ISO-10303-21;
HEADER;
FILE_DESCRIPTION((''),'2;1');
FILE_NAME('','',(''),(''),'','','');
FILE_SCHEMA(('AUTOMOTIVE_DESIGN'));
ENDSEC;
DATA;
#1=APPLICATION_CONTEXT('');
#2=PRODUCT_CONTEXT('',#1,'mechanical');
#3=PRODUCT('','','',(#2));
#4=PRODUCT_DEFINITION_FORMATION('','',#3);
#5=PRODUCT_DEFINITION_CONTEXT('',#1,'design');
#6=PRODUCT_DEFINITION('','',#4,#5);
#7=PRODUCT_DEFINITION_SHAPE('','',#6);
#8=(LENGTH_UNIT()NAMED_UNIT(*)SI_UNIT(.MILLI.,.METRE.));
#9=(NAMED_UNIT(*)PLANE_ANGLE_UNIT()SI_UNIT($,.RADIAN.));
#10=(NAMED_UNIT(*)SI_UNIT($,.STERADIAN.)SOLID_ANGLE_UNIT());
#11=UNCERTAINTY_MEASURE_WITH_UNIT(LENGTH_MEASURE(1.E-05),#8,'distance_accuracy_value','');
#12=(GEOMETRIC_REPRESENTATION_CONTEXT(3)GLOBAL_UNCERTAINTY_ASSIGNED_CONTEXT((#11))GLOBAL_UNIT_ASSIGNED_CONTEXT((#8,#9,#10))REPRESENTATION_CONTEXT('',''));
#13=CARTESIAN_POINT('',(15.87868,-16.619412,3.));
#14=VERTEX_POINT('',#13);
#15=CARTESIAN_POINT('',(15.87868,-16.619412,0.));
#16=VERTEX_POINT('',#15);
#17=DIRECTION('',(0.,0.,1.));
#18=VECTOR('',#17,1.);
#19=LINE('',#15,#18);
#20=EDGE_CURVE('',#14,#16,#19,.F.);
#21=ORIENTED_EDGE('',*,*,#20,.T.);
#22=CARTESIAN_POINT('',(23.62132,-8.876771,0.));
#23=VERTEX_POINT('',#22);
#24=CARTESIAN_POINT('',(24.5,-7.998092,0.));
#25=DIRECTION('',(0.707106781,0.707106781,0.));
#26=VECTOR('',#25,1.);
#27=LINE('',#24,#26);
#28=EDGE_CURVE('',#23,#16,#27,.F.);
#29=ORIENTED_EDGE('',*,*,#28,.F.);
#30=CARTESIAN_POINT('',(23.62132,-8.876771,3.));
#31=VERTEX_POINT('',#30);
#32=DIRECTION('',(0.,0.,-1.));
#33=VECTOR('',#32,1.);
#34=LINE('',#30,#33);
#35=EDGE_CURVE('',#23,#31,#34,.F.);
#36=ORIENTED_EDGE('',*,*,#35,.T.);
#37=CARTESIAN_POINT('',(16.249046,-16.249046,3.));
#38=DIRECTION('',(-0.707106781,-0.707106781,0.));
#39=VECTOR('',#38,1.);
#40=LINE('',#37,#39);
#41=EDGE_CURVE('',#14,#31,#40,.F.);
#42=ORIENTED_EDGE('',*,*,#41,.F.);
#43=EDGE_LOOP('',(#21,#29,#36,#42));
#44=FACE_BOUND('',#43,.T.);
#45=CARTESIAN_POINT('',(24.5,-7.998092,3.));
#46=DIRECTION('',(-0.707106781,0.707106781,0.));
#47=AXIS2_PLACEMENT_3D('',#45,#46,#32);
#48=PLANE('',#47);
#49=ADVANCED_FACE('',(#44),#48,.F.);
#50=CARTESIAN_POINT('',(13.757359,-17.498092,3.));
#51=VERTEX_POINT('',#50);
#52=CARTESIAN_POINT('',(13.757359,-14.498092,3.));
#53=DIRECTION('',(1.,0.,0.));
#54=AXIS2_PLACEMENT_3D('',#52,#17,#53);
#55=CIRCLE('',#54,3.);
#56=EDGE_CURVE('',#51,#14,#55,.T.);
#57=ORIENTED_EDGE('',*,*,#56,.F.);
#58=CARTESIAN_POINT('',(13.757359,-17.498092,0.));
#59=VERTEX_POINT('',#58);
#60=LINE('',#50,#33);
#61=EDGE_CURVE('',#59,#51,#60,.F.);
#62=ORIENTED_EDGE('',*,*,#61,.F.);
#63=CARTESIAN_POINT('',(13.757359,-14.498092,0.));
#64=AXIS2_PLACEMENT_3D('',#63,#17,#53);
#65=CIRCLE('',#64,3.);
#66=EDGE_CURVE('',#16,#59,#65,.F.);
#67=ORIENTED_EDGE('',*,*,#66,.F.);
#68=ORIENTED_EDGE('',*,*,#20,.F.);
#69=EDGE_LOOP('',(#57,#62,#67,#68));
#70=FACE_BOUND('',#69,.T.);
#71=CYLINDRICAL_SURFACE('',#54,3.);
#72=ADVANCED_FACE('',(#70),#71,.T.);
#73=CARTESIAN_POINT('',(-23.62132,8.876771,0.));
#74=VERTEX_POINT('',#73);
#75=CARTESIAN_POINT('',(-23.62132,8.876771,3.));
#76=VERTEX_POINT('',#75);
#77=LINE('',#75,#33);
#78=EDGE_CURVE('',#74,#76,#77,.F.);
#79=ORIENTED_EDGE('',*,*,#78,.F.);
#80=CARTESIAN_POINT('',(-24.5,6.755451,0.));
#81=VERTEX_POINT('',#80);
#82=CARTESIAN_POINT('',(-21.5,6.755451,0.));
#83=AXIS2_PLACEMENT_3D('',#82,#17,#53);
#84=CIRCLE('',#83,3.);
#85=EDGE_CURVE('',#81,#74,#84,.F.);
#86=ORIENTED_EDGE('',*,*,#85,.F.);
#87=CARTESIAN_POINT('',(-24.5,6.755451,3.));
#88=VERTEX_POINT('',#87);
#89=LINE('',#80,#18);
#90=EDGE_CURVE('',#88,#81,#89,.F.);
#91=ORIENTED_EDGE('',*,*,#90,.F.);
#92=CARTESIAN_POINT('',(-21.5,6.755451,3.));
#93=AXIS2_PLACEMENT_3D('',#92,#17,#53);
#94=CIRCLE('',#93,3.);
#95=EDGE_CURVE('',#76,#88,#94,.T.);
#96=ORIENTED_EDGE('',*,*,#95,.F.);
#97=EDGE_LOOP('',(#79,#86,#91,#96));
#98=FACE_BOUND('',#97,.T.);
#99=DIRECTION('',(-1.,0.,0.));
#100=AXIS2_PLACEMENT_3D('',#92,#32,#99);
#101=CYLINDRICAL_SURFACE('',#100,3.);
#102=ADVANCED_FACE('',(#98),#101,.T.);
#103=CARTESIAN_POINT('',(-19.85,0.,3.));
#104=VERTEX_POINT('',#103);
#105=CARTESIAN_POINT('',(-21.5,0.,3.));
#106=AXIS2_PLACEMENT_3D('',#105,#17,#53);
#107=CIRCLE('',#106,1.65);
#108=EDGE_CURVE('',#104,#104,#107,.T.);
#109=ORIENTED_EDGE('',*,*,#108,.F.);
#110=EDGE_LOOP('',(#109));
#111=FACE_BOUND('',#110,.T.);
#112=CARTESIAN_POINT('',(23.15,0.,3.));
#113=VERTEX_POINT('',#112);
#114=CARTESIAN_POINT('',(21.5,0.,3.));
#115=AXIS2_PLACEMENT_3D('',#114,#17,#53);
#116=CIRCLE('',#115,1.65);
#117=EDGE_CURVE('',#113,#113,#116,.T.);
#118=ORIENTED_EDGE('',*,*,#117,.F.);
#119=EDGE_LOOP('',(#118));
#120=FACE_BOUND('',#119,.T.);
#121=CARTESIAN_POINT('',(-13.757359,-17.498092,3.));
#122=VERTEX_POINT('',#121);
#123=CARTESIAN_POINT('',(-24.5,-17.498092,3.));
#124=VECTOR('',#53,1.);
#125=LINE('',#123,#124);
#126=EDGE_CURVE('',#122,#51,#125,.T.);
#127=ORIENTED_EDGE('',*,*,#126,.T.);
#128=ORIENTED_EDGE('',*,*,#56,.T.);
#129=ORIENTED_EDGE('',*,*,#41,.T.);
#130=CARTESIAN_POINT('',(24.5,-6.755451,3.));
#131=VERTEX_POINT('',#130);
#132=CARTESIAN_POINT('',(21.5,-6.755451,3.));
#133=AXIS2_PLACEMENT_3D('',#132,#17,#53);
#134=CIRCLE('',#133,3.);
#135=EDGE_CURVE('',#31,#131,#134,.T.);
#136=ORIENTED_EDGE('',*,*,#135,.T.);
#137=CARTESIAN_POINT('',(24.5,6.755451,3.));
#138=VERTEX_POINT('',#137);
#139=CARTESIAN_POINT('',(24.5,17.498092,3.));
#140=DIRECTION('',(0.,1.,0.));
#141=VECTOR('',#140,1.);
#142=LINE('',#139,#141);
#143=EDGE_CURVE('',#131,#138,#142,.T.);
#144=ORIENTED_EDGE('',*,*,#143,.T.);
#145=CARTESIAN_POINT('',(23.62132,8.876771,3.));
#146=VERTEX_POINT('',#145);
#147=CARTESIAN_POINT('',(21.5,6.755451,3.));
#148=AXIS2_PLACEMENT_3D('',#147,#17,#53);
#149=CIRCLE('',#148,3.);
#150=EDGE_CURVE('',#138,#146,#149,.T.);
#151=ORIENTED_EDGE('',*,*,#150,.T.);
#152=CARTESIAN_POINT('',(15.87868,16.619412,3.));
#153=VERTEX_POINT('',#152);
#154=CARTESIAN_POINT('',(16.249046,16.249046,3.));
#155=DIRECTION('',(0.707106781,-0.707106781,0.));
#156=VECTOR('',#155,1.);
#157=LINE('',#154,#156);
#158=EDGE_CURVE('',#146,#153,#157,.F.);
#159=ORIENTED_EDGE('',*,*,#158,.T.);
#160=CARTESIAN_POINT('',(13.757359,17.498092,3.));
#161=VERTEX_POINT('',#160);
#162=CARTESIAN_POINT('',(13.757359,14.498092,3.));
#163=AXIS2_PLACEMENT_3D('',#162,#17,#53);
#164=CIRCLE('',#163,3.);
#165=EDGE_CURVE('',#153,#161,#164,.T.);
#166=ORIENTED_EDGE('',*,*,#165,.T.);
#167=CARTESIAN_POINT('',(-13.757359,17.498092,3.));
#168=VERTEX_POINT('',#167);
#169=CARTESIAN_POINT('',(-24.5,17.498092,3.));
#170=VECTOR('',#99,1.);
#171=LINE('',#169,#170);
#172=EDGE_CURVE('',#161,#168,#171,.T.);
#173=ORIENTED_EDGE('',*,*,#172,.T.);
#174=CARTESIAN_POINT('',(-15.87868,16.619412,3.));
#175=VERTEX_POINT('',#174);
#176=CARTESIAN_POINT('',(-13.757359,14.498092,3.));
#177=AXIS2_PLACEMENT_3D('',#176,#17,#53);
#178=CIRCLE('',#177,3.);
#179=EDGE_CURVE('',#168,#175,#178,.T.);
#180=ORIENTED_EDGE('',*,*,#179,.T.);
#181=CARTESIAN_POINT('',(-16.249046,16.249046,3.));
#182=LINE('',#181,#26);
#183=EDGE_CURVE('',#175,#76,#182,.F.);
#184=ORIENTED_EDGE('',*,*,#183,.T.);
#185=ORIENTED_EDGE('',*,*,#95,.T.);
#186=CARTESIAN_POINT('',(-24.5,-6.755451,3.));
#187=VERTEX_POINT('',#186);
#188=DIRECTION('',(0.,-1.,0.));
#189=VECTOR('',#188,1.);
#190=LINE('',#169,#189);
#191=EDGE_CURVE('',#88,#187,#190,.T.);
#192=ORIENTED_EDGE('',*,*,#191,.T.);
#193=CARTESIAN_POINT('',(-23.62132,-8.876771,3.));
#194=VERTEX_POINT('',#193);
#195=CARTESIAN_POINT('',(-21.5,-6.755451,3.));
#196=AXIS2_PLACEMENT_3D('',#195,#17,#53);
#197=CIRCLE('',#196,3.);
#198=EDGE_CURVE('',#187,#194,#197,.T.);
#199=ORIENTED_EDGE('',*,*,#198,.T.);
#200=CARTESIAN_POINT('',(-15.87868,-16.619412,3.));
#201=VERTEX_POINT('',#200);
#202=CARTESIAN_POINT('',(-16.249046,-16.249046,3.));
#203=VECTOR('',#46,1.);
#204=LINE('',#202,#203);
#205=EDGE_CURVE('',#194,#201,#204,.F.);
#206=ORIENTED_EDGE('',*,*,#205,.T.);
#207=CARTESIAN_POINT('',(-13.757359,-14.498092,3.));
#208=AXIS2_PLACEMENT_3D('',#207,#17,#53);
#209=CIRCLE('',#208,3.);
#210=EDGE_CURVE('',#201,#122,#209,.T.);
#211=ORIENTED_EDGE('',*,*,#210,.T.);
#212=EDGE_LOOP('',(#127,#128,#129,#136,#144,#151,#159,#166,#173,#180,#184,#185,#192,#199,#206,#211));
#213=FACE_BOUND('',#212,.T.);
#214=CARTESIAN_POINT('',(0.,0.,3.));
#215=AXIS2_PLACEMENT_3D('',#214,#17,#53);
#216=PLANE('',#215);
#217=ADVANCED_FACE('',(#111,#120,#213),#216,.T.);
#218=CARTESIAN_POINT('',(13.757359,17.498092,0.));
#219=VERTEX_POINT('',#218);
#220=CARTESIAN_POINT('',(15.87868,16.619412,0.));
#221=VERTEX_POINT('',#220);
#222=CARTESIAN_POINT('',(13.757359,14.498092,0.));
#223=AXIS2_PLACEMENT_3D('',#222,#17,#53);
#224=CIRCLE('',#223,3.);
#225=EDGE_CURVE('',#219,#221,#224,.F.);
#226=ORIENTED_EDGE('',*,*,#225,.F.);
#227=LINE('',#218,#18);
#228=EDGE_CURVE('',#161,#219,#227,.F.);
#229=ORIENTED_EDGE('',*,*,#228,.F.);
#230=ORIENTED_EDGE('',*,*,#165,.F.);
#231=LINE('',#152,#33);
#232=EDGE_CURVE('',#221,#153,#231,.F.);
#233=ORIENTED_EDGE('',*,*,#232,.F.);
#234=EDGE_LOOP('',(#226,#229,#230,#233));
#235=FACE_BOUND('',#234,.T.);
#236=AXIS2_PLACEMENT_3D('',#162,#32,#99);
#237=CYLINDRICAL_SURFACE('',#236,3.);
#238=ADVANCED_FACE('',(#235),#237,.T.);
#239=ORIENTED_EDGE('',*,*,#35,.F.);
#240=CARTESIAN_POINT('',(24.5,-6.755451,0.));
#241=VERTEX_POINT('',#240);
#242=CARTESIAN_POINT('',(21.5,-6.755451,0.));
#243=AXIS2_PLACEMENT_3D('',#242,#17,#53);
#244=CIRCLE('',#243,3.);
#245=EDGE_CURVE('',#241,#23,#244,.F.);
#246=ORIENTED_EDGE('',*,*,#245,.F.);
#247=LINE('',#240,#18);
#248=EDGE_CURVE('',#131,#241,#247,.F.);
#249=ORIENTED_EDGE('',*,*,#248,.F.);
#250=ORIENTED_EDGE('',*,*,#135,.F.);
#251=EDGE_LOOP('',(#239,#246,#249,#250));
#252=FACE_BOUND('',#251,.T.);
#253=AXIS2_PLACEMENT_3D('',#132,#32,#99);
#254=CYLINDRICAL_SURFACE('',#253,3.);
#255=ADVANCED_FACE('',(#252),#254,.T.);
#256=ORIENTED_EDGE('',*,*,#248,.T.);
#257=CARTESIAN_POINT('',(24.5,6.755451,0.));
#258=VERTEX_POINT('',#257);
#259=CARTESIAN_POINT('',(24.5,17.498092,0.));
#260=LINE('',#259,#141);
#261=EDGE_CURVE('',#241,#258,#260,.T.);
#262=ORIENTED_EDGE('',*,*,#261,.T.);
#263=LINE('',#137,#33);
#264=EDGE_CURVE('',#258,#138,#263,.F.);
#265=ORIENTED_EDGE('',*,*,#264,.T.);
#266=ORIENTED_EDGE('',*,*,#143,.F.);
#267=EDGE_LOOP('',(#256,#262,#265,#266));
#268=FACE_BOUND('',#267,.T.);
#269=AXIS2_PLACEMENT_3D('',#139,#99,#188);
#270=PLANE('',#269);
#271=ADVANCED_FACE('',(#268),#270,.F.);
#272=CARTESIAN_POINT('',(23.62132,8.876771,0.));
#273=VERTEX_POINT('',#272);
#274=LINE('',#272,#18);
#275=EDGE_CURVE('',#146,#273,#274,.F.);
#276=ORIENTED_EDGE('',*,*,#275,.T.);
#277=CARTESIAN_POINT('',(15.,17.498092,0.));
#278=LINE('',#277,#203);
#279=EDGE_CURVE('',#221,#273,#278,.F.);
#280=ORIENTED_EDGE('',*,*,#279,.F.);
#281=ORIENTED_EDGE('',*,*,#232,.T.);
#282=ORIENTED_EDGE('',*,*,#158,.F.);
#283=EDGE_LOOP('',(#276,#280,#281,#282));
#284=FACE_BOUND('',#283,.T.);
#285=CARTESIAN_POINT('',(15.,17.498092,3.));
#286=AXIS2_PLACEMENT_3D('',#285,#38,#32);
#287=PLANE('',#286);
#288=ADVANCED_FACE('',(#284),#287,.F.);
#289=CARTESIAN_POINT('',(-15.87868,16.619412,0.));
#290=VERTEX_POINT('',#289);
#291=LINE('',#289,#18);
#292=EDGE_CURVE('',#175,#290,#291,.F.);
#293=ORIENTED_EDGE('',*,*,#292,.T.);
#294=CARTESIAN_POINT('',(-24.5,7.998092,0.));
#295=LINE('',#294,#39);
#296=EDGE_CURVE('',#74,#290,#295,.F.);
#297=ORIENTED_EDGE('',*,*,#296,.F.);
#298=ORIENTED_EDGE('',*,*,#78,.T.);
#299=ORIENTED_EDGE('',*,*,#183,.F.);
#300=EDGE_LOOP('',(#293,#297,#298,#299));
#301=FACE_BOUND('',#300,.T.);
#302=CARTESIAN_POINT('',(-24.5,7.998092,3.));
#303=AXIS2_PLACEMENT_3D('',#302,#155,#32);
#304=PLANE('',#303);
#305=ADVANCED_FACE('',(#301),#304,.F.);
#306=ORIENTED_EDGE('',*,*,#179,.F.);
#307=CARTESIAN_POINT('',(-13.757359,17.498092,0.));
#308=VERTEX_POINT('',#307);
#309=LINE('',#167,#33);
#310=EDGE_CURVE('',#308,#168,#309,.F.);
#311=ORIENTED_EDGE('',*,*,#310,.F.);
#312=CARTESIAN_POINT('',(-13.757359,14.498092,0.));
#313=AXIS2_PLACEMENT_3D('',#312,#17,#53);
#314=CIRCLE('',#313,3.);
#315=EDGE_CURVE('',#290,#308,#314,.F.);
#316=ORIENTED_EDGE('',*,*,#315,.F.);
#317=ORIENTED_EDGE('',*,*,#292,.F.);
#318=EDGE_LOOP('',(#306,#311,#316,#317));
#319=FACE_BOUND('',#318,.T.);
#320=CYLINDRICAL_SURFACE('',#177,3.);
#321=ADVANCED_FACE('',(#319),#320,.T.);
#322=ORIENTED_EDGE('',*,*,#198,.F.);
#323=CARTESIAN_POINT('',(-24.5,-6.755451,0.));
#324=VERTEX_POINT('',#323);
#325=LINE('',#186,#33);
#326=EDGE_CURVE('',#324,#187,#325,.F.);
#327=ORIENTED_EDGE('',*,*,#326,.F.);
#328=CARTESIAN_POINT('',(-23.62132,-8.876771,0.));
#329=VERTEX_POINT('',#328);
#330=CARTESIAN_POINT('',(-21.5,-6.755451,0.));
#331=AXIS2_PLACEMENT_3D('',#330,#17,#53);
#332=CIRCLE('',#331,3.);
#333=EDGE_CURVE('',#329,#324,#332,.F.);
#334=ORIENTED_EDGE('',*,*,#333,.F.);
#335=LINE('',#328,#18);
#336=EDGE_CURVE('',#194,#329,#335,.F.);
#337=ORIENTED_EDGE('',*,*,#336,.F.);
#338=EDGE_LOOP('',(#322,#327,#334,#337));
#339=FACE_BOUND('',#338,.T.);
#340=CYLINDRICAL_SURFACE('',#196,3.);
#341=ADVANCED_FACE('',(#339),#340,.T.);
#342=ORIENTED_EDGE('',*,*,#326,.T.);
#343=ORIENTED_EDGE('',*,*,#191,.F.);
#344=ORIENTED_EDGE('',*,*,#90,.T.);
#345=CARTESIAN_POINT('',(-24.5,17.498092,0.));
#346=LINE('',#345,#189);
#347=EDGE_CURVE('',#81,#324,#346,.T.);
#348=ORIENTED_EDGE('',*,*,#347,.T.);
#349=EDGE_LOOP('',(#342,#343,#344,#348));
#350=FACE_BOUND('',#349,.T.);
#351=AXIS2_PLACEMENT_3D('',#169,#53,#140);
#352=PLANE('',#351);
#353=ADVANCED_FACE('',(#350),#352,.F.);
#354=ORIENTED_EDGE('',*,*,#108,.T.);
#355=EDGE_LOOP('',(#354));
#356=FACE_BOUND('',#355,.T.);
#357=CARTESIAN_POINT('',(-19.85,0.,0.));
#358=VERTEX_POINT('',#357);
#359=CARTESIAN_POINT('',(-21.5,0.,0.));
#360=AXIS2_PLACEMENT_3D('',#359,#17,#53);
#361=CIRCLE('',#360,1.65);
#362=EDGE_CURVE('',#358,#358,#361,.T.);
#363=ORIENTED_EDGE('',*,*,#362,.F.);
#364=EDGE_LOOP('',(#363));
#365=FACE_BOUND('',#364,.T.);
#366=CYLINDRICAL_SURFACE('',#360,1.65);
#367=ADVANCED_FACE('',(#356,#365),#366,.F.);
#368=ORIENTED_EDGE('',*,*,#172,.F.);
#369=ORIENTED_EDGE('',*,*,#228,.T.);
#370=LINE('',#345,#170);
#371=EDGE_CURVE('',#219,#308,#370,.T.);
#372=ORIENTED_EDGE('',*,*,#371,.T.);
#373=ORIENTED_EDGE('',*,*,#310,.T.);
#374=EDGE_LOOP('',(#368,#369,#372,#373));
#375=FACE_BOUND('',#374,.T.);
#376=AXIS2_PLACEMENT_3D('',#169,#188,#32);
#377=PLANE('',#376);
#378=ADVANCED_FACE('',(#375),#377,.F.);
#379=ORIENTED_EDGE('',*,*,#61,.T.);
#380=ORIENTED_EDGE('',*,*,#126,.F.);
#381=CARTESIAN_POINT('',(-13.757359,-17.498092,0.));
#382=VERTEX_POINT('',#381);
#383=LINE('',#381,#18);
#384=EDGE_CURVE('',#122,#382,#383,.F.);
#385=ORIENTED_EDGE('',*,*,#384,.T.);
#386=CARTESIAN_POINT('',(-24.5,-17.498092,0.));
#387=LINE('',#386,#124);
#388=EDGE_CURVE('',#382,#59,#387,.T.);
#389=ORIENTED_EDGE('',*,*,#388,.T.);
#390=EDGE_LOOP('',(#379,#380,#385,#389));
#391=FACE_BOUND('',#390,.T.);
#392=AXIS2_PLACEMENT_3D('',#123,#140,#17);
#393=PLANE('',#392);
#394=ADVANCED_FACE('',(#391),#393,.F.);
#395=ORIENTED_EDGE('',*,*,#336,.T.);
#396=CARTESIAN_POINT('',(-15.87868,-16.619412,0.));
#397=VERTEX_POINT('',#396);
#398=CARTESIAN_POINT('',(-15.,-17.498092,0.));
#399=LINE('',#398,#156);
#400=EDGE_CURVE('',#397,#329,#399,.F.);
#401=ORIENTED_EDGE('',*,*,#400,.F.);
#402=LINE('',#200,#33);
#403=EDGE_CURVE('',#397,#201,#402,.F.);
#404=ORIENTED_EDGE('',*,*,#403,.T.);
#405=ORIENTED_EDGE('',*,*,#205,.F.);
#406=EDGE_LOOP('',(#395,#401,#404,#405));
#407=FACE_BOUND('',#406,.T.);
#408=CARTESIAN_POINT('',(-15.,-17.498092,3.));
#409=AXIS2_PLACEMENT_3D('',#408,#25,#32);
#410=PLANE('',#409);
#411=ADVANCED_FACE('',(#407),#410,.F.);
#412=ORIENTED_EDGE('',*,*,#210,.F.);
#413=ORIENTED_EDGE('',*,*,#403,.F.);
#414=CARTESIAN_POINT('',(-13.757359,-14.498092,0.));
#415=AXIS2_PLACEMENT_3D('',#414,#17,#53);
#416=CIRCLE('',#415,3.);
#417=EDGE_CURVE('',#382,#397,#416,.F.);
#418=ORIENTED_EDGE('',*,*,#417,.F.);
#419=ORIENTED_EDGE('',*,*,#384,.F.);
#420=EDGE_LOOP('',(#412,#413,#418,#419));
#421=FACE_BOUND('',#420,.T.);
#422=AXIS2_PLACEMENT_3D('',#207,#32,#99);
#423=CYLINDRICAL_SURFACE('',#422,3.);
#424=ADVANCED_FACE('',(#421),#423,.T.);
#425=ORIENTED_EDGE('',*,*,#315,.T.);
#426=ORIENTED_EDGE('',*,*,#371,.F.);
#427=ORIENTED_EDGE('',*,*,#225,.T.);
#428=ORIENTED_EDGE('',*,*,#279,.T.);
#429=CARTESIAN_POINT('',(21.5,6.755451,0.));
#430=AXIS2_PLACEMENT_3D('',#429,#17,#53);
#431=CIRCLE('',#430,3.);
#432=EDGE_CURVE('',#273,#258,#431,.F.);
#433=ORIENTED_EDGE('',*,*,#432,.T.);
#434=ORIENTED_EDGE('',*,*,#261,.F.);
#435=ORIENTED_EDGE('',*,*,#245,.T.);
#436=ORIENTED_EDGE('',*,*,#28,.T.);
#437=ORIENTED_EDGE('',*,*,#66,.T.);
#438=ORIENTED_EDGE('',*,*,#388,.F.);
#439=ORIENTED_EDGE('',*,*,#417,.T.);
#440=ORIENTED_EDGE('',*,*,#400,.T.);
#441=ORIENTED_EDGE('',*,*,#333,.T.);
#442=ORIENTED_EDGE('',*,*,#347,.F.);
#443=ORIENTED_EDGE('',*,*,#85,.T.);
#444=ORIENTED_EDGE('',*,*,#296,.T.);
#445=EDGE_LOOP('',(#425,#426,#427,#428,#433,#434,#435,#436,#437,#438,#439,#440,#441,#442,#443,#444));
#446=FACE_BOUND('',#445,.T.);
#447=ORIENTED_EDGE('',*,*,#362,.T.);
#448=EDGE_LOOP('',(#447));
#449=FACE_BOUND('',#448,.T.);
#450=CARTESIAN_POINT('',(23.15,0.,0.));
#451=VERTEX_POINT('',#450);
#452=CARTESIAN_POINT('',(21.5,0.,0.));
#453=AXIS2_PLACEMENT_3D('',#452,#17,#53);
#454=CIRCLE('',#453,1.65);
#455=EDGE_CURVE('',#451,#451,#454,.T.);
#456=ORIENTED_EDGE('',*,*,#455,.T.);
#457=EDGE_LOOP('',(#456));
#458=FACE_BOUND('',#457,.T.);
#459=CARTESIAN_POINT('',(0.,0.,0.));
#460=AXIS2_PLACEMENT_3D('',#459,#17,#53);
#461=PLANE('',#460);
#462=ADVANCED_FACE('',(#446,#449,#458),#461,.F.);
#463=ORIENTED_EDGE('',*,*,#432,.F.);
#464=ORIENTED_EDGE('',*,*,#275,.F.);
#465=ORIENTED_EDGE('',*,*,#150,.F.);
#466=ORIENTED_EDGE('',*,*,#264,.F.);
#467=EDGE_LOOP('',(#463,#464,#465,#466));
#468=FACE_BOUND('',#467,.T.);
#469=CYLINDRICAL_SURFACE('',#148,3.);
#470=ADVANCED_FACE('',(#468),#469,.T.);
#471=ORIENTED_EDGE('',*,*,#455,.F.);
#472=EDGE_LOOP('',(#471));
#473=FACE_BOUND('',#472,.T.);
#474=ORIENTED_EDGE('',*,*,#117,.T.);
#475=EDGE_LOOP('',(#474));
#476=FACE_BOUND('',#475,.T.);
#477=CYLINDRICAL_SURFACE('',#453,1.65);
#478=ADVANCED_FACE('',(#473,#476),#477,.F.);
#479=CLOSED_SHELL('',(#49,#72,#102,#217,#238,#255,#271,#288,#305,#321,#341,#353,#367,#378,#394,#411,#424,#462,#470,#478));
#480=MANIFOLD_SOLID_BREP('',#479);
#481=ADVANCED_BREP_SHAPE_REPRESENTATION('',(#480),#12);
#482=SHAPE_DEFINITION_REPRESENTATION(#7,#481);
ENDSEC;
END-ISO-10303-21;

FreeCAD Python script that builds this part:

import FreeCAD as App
import Part
import Sketcher
Q = App.Units.Quantity


def edges_at(feature, points):
    """Names of the edges that pass closest to the given points."""
    edges = feature.Shape.Edges
    near = lambda p: min(range(len(edges)), key=lambda i: edges[i].distToShape(Part.Vertex(*p))[0])
    return sorted({f"Edge{near(p) + 1}" for p in points})

doc = App.newDocument("Part")
body = doc.addObject("PartDesign::Body", "Body")

# Sketch on XY plane
sketch1 = body.newObject("Sketcher::SketchObject", "Sketch")
sketch1.AttachmentSupport = (doc.getObject("XY_Plane"), [""])
sketch1.MapMode = "FlatFace"
sketch1.addGeometry(Part.LineSegment(App.Vector(-24, 17, 0), App.Vector(-24, -17, 0)), False)
sketch1.addGeometry(Part.LineSegment(App.Vector(-24, -17, 0), App.Vector(24, -17, 0)), False)
sketch1.addGeometry(Part.LineSegment(App.Vector(24, -17, 0), App.Vector(24, 17, 0)), False)
sketch1.addGeometry(Part.LineSegment(App.Vector(24, 17, 0), App.Vector(-24, 17, 0)), False)
sketch1.addConstraint(Sketcher.Constraint("Coincident", 0, 2, 1, 1))
sketch1.addConstraint(Sketcher.Constraint("Coincident", 1, 2, 2, 1))
sketch1.addConstraint(Sketcher.Constraint("Coincident", 2, 2, 3, 1))
sketch1.addConstraint(Sketcher.Constraint("Coincident", 3, 2, 0, 1))
sketch1.addConstraint(Sketcher.Constraint("Vertical", 0))
sketch1.addConstraint(Sketcher.Constraint("Horizontal", 1))
sketch1.addConstraint(Sketcher.Constraint("Vertical", 2))
sketch1.addConstraint(Sketcher.Constraint("Horizontal", 3))
sketch1.addConstraint(Sketcher.Constraint("Symmetric", 0, 2, 2, 2, -1, 1))
sketch1.addConstraint(Sketcher.Constraint("DistanceX", 1, 1, 1, 2, Q("49 mm")))
sketch1.addConstraint(Sketcher.Constraint("DistanceY", 0, 2, 0, 1, Q("34.996183 mm")))
pad1 = body.newObject("PartDesign::Pad", "Pad")
pad1.Profile = sketch1
pad1.Length = 3
doc.recompute()

chamfer = body.newObject("PartDesign::Chamfer", "Chamfer")
chamfer.Base = (pad1, edges_at(pad1, [
    (24.5, -17.498, 1.5),
    (-24.5, -17.498, 1.5),
    (-24.5, 17.498, 1.5),
    (24.5, 17.498, 1.5),
]))
chamfer.Size = 9.5
doc.recompute()

fillet = body.newObject("PartDesign::Fillet", "Fillet")
fillet.Base = (chamfer, edges_at(chamfer, [
    (-24.5, -7.998, 1.5),
    (-24.5, 7.998, 1.5),
    (15, 17.498, 1.5),
    (-15, 17.498, 1.5),
    (15, -17.498, 1.5),
    (-15, -17.498, 1.5),
    (24.5, 7.998, 1.5),
    (24.5, -7.998, 1.5),
]))
fillet.Radius = 3

# Sketch on XY plane
sketch2 = body.newObject("Sketcher::SketchObject", "Sketch001")
sketch2.AttachmentSupport = (doc.getObject("XY_Plane"), [""])
sketch2.MapMode = "FlatFace"
sketch2.AttachmentOffset = App.Placement(App.Vector(0, 0, 3), App.Rotation())
sketch2.addGeometry(Part.Circle(App.Vector(-21.5, 0, 0), App.Vector(0, 0, 1), 1.6), False)
sketch2.addGeometry(Part.Circle(App.Vector(21.5, 0, 0), App.Vector(0, 0, 1), 1.6), False)
sketch2.addConstraint(Sketcher.Constraint("Equal", 0, 1))
sketch2.addConstraint(Sketcher.Constraint("Symmetric", 0, 3, 1, 3, -1, 1))
sketch2.addConstraint(Sketcher.Constraint("PointOnObject", 0, 3, -1))
sketch2.addConstraint(Sketcher.Constraint("Diameter", 0, Q("3.3 mm")))
sketch2.addConstraint(Sketcher.Constraint("DistanceX", 0, 3, 1, 3, Q("43 mm")))
pocket1 = body.newObject("PartDesign::Pocket", "Pocket")
pocket1.Profile = sketch2
pocket1.Type = "ThroughAll"

doc.recompute()
